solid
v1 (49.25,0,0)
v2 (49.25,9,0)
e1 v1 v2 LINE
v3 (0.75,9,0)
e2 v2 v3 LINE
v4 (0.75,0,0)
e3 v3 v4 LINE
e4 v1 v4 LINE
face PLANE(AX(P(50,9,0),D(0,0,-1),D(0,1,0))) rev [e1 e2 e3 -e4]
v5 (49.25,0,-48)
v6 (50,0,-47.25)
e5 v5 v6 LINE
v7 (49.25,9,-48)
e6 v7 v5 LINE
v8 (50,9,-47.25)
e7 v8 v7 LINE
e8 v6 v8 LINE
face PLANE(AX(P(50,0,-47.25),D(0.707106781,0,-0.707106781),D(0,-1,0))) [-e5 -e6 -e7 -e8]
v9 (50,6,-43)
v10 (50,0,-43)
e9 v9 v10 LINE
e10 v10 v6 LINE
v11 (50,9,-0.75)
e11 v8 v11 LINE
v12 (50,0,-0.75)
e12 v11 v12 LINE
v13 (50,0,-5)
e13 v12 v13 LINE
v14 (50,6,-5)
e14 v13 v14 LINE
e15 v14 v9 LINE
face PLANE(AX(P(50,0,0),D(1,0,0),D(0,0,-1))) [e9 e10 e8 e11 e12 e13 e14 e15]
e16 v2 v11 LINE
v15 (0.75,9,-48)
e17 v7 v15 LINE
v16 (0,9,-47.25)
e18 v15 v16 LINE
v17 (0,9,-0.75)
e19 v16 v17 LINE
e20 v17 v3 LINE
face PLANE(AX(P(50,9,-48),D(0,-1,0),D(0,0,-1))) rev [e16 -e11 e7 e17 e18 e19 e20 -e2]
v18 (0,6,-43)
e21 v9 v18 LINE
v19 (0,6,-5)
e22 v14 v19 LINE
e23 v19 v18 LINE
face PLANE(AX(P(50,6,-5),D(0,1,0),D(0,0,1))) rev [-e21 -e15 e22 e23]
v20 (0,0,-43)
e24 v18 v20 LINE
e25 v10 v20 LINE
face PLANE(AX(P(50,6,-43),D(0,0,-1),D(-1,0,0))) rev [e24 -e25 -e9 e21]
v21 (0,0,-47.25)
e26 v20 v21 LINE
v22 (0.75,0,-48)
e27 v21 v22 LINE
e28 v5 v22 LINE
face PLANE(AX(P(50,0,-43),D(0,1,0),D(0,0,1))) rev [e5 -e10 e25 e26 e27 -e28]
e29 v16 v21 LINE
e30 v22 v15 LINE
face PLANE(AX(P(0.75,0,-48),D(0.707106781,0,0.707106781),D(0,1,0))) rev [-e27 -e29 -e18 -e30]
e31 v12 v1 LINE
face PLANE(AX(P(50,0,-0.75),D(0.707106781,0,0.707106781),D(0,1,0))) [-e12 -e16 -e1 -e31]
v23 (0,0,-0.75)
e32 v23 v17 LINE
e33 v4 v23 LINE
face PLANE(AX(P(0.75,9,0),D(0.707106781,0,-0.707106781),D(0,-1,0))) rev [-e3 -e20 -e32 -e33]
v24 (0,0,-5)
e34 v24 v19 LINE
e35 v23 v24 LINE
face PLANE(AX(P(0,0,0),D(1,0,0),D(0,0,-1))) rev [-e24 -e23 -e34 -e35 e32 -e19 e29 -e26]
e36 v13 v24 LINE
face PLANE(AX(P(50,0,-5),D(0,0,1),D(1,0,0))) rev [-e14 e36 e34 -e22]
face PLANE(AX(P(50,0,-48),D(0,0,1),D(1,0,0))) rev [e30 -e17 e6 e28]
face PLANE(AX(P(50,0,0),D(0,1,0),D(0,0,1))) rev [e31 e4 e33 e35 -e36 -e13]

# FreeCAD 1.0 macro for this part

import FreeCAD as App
import Part
import Sketcher
Q = App.Units.Quantity


def edges_at(feature, points):
    """Names of the edges that pass closest to the given points."""
    edges = feature.Shape.Edges
    near = lambda p: min(range(len(edges)), key=lambda i: edges[i].distToShape(Part.Vertex(*p))[0])
    return sorted({f"Edge{near(p) + 1}" for p in points})

doc = App.newDocument("Part")
body = doc.addObject("PartDesign::Body", "Body")

# Sketch on YZ plane
sketch1 = body.newObject("Sketcher::SketchObject", "Sketch")
sketch1.AttachmentSupport = (doc.getObject("YZ_Plane"), [""])
sketch1.MapMode = "FlatFace"
sketch1.addGeometry([
    Part.LineSegment(App.Vector(0, 0, 0), App.Vector(0, -5, 0)),  # 0
    Part.LineSegment(App.Vector(0, -5, 0), App.Vector(6, -5, 0)),  # 1
    Part.LineSegment(App.Vector(6, -5, 0), App.Vector(6, -43, 0)),  # 2
    Part.LineSegment(App.Vector(6, -43, 0), App.Vector(0, -43, 0)),  # 3
    Part.LineSegment(App.Vector(0, -43, 0), App.Vector(0, -48, 0)),  # 4
    Part.LineSegment(App.Vector(0, -48, 0), App.Vector(9, -48, 0)),  # 5
    Part.LineSegment(App.Vector(9, -48, 0), App.Vector(9, 0, 0)),  # 6
    Part.LineSegment(App.Vector(9, 0, 0), App.Vector(0, 0, 0)),  # 7
], False)
sketch1.addConstraint([
    Sketcher.Constraint("Coincident", 0, 2, 1, 1),
    Sketcher.Constraint("Coincident", 1, 2, 2, 1),
    Sketcher.Constraint("Coincident", 2, 2, 3, 1),
    Sketcher.Constraint("Coincident", 3, 2, 4, 1),
    Sketcher.Constraint("Coincident", 4, 2, 5, 1),
    Sketcher.Constraint("Coincident", 5, 2, 6, 1),
    Sketcher.Constraint("Coincident", 6, 2, 7, 1),
    Sketcher.Constraint("Coincident", 7, 2, 0, 1),
    Sketcher.Constraint("Vertical", 0),
    Sketcher.Constraint("Horizontal", 1),
    Sketcher.Constraint("Vertical", 2),
    Sketcher.Constraint("Horizontal", 3),
    Sketcher.Constraint("Vertical", 4),
    Sketcher.Constraint("Horizontal", 5),
    Sketcher.Constraint("Vertical", 6),
    Sketcher.Constraint("Horizontal", 7),
    Sketcher.Constraint("Coincident", 7, 2, -1, 1),
    Sketcher.Constraint("PointOnObject", 3, 2, -2),
    Sketcher.Constraint("Equal", 0, 4),
    Sketcher.Constraint("DistanceX", 1, 1, 1, 2, Q("6 mm")),
    Sketcher.Constraint("DistanceX", 5, 1, 5, 2, Q("9 mm")),
    Sketcher.Constraint("DistanceY", 0, 2, 0, 1, Q("5 mm")),
    Sketcher.Constraint("DistanceY", 2, 2, 2, 1, Q("38 mm")),
])
pad1 = body.newObject("PartDesign::Pad", "Pad")
pad1.Profile = sketch1
pad1.Length = 50
doc.recompute()

chamfer = body.newObject("PartDesign::Chamfer", "Chamfer")
chamfer.Base = (pad1, edges_at(pad1, [
    (0, 4.5, 0),
    (50, 4.5, -48),
    (50, 4.5, 0),
    (0, 4.5, -48),
]))
chamfer.Size = 0.75

doc.recompute()
